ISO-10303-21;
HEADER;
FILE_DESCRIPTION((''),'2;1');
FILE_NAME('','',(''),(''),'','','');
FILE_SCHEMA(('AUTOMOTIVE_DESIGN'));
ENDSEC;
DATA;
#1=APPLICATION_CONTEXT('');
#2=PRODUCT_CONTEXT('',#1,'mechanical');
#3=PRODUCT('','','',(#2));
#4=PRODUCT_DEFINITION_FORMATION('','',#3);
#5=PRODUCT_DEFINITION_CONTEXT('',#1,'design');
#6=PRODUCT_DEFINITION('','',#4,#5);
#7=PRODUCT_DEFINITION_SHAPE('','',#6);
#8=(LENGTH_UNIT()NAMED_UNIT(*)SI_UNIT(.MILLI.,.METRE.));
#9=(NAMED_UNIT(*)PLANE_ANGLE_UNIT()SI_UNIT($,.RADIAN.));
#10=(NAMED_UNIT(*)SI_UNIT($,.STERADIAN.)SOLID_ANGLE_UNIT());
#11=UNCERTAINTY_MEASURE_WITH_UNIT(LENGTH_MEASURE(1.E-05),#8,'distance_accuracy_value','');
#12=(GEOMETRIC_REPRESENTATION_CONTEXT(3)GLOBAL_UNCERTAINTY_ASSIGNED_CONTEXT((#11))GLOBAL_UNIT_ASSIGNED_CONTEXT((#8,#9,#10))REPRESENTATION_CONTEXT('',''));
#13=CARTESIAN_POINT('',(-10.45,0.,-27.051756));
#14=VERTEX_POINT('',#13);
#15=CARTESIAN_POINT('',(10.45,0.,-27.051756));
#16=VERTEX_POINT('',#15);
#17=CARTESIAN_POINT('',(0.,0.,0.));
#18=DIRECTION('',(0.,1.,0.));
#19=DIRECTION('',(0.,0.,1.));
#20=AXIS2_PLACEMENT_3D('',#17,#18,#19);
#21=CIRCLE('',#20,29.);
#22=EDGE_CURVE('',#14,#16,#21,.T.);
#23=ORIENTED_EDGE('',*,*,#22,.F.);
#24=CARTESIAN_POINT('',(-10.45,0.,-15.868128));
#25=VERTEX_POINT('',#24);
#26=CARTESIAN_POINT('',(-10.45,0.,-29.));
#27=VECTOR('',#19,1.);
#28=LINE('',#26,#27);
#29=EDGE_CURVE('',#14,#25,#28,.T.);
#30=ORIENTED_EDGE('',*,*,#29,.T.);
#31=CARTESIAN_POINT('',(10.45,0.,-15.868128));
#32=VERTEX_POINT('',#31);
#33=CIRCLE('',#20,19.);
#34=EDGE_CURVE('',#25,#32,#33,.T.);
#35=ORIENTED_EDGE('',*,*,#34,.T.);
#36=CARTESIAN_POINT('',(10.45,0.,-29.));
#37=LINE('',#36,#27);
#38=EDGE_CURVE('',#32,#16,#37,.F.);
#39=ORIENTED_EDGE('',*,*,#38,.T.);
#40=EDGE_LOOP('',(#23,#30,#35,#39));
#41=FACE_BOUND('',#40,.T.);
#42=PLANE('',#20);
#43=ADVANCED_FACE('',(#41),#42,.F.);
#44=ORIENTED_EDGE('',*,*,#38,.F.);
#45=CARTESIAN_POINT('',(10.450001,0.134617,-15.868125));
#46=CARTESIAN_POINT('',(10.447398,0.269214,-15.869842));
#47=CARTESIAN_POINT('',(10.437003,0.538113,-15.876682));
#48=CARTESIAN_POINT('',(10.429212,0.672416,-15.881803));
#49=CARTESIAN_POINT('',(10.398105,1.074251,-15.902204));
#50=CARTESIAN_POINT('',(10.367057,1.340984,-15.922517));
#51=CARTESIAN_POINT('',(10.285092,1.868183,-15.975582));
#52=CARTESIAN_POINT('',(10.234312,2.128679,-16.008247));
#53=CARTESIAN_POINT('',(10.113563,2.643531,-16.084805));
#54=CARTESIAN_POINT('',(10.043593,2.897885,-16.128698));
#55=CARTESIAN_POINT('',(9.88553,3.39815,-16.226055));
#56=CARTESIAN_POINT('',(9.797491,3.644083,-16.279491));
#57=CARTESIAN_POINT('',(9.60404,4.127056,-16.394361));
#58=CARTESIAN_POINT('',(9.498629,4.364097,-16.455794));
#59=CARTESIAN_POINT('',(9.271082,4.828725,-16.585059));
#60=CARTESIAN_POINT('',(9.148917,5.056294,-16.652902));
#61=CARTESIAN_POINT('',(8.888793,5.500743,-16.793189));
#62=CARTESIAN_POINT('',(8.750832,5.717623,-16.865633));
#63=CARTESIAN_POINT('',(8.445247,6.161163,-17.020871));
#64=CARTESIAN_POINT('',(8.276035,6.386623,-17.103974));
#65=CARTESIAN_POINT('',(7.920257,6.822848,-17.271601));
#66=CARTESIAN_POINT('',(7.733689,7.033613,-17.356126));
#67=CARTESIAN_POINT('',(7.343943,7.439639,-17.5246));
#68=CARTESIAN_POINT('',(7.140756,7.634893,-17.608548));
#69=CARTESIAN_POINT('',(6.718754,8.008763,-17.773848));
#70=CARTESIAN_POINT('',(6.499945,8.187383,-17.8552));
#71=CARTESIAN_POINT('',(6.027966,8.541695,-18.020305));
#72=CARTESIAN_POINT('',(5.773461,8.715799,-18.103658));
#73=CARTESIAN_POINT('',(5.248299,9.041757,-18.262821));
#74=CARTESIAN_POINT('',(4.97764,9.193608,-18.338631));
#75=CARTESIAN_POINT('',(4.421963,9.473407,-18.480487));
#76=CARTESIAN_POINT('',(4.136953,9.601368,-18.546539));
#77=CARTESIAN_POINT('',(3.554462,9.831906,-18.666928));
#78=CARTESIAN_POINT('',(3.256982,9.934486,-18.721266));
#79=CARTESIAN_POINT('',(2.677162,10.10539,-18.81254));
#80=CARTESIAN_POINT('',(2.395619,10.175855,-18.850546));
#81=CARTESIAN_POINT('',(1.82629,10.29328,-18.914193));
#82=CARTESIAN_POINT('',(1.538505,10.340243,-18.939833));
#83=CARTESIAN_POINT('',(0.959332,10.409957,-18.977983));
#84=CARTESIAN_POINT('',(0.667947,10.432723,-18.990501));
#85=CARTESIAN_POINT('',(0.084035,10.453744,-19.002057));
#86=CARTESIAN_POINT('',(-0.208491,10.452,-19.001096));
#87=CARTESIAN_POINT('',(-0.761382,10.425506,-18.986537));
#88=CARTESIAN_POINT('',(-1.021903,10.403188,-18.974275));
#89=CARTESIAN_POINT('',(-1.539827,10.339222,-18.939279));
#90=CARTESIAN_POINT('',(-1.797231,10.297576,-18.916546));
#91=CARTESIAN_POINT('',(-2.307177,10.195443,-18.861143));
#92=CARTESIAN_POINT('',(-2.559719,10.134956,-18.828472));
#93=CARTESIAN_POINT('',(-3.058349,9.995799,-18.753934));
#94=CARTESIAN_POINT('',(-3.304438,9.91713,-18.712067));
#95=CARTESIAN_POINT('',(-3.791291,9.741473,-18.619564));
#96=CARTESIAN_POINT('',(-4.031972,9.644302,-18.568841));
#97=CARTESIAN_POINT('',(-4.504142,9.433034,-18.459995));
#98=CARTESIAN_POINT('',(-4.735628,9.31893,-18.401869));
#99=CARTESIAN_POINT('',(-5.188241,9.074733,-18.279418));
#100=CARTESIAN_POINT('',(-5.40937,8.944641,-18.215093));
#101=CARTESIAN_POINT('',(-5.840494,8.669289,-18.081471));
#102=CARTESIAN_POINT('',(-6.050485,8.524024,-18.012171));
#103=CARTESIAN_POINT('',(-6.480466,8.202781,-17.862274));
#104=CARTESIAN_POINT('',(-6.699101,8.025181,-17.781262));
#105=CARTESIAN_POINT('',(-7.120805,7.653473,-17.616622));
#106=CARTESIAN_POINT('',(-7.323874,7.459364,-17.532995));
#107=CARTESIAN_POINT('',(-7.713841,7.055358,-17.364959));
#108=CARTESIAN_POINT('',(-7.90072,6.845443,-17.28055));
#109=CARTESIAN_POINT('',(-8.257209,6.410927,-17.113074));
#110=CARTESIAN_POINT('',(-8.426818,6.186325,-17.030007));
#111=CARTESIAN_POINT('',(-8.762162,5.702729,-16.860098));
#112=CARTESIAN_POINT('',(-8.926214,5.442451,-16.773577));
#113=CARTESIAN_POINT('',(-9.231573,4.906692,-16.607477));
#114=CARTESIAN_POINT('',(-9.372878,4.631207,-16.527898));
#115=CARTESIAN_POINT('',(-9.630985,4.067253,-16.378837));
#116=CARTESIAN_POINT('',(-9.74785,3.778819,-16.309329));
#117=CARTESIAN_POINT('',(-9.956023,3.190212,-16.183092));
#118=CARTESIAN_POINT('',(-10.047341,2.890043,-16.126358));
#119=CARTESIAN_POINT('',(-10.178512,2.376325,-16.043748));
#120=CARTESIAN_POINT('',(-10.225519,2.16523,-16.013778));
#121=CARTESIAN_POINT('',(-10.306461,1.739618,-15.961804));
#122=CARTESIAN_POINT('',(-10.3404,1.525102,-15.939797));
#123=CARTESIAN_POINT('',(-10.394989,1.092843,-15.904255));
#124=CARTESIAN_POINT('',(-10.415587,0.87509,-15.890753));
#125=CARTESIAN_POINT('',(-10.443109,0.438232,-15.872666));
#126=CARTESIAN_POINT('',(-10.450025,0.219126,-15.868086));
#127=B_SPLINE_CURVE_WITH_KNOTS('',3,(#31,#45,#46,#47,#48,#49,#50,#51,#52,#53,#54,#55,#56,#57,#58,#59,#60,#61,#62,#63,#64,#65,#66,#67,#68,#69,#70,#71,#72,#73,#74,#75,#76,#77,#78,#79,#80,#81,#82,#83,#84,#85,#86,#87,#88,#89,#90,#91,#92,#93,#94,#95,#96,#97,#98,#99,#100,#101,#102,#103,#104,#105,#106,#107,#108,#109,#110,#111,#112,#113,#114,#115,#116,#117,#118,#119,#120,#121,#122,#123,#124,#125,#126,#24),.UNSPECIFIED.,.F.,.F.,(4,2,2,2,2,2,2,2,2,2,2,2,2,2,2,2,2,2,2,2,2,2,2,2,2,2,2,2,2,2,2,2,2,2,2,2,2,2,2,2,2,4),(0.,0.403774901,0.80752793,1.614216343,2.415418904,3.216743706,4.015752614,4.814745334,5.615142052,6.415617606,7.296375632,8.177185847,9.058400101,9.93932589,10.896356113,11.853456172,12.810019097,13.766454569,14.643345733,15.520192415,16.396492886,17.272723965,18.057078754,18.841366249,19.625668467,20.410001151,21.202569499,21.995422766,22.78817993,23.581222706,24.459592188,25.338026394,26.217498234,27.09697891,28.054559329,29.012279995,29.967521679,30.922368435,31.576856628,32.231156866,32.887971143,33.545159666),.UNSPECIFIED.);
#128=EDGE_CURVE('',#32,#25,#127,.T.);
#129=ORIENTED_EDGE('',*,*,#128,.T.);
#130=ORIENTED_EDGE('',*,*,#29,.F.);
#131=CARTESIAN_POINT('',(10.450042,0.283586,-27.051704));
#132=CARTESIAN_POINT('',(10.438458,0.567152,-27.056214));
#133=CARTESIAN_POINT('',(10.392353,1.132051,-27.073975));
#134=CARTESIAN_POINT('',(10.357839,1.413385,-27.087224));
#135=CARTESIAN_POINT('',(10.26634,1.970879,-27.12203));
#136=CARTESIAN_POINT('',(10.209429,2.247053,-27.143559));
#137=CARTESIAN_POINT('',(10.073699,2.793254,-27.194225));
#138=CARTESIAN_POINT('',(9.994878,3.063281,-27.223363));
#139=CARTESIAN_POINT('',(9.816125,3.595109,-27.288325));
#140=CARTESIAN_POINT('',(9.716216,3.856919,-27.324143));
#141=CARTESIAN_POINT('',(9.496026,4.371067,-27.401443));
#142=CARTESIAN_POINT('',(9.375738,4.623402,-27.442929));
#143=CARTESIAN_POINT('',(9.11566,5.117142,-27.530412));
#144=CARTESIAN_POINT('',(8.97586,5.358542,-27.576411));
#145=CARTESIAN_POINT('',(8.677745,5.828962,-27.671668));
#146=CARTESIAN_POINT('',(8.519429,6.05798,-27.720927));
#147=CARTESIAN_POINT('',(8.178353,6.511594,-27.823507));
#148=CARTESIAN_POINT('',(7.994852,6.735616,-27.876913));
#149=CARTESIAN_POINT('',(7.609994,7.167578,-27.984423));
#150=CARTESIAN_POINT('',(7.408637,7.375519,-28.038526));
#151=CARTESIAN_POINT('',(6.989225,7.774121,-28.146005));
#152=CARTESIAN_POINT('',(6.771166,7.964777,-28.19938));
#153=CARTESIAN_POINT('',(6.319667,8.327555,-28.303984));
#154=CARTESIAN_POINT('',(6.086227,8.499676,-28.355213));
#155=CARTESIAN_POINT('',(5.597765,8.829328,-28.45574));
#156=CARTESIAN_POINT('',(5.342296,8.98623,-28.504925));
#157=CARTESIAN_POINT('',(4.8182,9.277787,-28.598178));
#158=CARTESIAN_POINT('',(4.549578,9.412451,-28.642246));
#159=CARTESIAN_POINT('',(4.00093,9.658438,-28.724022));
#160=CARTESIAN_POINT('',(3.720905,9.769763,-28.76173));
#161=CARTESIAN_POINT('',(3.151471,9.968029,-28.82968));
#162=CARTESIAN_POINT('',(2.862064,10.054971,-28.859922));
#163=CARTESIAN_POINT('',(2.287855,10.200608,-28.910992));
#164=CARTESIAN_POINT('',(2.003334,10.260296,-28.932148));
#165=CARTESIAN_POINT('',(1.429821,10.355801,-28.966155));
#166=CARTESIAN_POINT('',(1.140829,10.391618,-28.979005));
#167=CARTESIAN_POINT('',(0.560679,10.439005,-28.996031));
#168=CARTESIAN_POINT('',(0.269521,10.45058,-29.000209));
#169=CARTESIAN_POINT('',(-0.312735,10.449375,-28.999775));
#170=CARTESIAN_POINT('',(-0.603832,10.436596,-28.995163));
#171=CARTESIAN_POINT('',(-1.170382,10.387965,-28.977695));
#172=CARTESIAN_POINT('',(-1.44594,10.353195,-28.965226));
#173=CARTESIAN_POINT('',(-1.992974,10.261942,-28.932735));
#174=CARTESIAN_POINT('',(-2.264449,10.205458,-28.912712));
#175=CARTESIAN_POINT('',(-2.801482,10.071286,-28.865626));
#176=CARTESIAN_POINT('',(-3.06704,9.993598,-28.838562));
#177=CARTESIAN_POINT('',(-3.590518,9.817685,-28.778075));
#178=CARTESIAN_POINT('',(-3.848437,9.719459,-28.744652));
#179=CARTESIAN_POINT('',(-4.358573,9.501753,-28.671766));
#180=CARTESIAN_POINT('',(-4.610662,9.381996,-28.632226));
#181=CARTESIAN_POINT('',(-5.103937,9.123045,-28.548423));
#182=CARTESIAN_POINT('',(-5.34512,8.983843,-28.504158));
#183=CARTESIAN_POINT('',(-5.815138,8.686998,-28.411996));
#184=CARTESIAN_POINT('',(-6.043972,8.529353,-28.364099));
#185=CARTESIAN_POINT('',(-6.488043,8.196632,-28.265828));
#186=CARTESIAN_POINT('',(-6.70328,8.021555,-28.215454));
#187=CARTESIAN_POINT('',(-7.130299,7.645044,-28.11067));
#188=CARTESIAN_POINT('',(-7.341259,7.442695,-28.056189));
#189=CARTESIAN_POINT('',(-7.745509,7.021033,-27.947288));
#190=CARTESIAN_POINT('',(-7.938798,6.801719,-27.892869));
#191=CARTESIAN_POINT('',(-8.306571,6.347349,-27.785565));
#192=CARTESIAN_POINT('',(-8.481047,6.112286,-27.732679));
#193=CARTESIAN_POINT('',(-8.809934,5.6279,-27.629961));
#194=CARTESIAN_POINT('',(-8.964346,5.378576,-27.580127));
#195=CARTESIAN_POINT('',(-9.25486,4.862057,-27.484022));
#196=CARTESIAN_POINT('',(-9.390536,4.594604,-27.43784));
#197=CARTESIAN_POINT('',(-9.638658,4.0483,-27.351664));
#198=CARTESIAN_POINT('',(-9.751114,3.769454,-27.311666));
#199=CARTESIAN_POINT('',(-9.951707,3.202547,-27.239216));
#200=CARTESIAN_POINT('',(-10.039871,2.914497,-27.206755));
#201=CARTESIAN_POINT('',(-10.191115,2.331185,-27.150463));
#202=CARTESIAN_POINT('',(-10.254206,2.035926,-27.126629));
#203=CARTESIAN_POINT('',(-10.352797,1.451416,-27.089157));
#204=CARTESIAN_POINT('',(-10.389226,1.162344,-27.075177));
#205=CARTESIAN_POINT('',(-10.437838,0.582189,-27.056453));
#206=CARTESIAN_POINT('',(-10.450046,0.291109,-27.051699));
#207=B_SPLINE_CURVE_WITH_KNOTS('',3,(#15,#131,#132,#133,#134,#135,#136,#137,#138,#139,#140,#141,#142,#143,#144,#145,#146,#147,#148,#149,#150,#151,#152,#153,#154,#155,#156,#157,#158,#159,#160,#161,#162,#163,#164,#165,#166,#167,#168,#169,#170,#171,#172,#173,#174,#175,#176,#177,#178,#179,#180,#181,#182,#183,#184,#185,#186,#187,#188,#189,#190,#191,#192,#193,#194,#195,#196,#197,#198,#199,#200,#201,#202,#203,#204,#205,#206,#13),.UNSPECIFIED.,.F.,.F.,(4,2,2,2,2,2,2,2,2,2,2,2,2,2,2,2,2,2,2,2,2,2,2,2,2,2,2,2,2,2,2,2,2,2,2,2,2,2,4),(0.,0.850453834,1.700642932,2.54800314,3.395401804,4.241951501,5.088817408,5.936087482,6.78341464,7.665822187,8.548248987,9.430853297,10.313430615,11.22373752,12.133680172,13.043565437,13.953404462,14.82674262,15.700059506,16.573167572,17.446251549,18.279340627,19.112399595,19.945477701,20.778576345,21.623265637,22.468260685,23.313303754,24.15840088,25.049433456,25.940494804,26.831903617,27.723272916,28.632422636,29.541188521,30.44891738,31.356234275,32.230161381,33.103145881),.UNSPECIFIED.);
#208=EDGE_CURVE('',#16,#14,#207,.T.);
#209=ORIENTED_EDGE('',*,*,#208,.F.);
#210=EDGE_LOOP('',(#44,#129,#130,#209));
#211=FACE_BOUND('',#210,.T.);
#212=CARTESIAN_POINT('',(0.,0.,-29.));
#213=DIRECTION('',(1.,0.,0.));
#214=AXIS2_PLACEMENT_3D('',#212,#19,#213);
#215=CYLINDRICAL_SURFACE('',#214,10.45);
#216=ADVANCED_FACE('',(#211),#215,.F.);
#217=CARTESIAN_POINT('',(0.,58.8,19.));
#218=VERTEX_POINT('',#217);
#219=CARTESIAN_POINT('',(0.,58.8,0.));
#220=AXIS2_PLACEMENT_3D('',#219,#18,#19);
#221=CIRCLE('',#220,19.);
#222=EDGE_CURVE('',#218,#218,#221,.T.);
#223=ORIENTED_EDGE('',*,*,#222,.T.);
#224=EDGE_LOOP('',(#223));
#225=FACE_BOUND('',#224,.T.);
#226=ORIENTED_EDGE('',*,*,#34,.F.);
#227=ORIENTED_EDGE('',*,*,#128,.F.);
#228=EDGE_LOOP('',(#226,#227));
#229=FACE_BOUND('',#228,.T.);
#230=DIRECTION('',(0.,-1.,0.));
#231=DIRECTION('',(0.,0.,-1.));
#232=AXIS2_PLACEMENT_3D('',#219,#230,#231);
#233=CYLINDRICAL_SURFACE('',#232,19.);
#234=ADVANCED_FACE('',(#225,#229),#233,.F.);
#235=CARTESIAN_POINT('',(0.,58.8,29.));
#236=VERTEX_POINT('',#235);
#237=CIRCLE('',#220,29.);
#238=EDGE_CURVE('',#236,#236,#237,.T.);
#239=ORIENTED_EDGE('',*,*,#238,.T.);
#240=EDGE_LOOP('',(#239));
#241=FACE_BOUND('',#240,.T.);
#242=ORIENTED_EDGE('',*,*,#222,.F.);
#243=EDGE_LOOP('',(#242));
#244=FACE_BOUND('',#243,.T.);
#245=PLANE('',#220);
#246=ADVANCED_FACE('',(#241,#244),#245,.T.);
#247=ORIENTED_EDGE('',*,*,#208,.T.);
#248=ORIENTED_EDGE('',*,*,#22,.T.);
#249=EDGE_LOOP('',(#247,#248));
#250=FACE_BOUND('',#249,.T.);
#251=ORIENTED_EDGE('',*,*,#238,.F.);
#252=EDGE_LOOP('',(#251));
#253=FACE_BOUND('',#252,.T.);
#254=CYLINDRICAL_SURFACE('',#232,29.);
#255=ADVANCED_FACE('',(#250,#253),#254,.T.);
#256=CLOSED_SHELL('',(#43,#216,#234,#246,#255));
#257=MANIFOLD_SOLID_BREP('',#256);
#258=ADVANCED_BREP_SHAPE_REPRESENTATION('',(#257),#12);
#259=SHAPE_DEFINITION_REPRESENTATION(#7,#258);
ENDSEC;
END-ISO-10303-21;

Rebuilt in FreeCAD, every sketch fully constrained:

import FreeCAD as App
import Part
import Sketcher
from FreeCAD import Vector
Q = App.Units.Quantity

doc = App.newDocument("Part")
body = doc.addObject("PartDesign::Body", "Body")

# Sketch on XZ plane
sketch1 = doc.addObject("Sketcher::SketchObject", "Sketch")
body.addObject(sketch1)
sketch1.AttachmentSupport = (doc.XZ_Plane, [""])
sketch1.MapMode = "FlatFace"
sketch1.addGeometry([
    Part.Circle(Vector(0, 0, 0), Vector(0, 0, 1), 29),
    Part.Circle(Vector(0, 0, 0), Vector(0, 0, 1), 19),
], False)
sketch1.addConstraint([
    Sketcher.Constraint("Coincident", 0, 3, -1, 1),
    Sketcher.Constraint("Coincident", 1, 3, -1, 1),
    Sketcher.Constraint("Diameter", 0, Q("58 mm")),
    Sketcher.Constraint("Diameter", 1, Q("38 mm")),
])
pad1 = doc.addObject("PartDesign::Pad", "Pad")
body.addObject(pad1)
pad1.Profile = sketch1
pad1.Length = 58.8
pad1.Reversed = True

# Sketch on XY plane
sketch2 = doc.addObject("Sketcher::SketchObject", "Sketch001")
body.addObject(sketch2)
sketch2.AttachmentSupport = (doc.XY_Plane, [""])
sketch2.MapMode = "FlatFace"
sketch2.addGeometry(Part.Circle(Vector(0, 0, 0), Vector(0, 0, 1), 10), False)
sketch2.addConstraint([
    Sketcher.Constraint("Coincident", 0, 3, -1, 1),
    Sketcher.Constraint("Diameter", 0, Q("20.9 mm")),
])
pocket1 = doc.addObject("PartDesign::Pocket", "Pocket")
body.addObject(pocket1)
pocket1.Profile = sketch2
pocket1.Type = "ThroughAll"

doc.recompute()
